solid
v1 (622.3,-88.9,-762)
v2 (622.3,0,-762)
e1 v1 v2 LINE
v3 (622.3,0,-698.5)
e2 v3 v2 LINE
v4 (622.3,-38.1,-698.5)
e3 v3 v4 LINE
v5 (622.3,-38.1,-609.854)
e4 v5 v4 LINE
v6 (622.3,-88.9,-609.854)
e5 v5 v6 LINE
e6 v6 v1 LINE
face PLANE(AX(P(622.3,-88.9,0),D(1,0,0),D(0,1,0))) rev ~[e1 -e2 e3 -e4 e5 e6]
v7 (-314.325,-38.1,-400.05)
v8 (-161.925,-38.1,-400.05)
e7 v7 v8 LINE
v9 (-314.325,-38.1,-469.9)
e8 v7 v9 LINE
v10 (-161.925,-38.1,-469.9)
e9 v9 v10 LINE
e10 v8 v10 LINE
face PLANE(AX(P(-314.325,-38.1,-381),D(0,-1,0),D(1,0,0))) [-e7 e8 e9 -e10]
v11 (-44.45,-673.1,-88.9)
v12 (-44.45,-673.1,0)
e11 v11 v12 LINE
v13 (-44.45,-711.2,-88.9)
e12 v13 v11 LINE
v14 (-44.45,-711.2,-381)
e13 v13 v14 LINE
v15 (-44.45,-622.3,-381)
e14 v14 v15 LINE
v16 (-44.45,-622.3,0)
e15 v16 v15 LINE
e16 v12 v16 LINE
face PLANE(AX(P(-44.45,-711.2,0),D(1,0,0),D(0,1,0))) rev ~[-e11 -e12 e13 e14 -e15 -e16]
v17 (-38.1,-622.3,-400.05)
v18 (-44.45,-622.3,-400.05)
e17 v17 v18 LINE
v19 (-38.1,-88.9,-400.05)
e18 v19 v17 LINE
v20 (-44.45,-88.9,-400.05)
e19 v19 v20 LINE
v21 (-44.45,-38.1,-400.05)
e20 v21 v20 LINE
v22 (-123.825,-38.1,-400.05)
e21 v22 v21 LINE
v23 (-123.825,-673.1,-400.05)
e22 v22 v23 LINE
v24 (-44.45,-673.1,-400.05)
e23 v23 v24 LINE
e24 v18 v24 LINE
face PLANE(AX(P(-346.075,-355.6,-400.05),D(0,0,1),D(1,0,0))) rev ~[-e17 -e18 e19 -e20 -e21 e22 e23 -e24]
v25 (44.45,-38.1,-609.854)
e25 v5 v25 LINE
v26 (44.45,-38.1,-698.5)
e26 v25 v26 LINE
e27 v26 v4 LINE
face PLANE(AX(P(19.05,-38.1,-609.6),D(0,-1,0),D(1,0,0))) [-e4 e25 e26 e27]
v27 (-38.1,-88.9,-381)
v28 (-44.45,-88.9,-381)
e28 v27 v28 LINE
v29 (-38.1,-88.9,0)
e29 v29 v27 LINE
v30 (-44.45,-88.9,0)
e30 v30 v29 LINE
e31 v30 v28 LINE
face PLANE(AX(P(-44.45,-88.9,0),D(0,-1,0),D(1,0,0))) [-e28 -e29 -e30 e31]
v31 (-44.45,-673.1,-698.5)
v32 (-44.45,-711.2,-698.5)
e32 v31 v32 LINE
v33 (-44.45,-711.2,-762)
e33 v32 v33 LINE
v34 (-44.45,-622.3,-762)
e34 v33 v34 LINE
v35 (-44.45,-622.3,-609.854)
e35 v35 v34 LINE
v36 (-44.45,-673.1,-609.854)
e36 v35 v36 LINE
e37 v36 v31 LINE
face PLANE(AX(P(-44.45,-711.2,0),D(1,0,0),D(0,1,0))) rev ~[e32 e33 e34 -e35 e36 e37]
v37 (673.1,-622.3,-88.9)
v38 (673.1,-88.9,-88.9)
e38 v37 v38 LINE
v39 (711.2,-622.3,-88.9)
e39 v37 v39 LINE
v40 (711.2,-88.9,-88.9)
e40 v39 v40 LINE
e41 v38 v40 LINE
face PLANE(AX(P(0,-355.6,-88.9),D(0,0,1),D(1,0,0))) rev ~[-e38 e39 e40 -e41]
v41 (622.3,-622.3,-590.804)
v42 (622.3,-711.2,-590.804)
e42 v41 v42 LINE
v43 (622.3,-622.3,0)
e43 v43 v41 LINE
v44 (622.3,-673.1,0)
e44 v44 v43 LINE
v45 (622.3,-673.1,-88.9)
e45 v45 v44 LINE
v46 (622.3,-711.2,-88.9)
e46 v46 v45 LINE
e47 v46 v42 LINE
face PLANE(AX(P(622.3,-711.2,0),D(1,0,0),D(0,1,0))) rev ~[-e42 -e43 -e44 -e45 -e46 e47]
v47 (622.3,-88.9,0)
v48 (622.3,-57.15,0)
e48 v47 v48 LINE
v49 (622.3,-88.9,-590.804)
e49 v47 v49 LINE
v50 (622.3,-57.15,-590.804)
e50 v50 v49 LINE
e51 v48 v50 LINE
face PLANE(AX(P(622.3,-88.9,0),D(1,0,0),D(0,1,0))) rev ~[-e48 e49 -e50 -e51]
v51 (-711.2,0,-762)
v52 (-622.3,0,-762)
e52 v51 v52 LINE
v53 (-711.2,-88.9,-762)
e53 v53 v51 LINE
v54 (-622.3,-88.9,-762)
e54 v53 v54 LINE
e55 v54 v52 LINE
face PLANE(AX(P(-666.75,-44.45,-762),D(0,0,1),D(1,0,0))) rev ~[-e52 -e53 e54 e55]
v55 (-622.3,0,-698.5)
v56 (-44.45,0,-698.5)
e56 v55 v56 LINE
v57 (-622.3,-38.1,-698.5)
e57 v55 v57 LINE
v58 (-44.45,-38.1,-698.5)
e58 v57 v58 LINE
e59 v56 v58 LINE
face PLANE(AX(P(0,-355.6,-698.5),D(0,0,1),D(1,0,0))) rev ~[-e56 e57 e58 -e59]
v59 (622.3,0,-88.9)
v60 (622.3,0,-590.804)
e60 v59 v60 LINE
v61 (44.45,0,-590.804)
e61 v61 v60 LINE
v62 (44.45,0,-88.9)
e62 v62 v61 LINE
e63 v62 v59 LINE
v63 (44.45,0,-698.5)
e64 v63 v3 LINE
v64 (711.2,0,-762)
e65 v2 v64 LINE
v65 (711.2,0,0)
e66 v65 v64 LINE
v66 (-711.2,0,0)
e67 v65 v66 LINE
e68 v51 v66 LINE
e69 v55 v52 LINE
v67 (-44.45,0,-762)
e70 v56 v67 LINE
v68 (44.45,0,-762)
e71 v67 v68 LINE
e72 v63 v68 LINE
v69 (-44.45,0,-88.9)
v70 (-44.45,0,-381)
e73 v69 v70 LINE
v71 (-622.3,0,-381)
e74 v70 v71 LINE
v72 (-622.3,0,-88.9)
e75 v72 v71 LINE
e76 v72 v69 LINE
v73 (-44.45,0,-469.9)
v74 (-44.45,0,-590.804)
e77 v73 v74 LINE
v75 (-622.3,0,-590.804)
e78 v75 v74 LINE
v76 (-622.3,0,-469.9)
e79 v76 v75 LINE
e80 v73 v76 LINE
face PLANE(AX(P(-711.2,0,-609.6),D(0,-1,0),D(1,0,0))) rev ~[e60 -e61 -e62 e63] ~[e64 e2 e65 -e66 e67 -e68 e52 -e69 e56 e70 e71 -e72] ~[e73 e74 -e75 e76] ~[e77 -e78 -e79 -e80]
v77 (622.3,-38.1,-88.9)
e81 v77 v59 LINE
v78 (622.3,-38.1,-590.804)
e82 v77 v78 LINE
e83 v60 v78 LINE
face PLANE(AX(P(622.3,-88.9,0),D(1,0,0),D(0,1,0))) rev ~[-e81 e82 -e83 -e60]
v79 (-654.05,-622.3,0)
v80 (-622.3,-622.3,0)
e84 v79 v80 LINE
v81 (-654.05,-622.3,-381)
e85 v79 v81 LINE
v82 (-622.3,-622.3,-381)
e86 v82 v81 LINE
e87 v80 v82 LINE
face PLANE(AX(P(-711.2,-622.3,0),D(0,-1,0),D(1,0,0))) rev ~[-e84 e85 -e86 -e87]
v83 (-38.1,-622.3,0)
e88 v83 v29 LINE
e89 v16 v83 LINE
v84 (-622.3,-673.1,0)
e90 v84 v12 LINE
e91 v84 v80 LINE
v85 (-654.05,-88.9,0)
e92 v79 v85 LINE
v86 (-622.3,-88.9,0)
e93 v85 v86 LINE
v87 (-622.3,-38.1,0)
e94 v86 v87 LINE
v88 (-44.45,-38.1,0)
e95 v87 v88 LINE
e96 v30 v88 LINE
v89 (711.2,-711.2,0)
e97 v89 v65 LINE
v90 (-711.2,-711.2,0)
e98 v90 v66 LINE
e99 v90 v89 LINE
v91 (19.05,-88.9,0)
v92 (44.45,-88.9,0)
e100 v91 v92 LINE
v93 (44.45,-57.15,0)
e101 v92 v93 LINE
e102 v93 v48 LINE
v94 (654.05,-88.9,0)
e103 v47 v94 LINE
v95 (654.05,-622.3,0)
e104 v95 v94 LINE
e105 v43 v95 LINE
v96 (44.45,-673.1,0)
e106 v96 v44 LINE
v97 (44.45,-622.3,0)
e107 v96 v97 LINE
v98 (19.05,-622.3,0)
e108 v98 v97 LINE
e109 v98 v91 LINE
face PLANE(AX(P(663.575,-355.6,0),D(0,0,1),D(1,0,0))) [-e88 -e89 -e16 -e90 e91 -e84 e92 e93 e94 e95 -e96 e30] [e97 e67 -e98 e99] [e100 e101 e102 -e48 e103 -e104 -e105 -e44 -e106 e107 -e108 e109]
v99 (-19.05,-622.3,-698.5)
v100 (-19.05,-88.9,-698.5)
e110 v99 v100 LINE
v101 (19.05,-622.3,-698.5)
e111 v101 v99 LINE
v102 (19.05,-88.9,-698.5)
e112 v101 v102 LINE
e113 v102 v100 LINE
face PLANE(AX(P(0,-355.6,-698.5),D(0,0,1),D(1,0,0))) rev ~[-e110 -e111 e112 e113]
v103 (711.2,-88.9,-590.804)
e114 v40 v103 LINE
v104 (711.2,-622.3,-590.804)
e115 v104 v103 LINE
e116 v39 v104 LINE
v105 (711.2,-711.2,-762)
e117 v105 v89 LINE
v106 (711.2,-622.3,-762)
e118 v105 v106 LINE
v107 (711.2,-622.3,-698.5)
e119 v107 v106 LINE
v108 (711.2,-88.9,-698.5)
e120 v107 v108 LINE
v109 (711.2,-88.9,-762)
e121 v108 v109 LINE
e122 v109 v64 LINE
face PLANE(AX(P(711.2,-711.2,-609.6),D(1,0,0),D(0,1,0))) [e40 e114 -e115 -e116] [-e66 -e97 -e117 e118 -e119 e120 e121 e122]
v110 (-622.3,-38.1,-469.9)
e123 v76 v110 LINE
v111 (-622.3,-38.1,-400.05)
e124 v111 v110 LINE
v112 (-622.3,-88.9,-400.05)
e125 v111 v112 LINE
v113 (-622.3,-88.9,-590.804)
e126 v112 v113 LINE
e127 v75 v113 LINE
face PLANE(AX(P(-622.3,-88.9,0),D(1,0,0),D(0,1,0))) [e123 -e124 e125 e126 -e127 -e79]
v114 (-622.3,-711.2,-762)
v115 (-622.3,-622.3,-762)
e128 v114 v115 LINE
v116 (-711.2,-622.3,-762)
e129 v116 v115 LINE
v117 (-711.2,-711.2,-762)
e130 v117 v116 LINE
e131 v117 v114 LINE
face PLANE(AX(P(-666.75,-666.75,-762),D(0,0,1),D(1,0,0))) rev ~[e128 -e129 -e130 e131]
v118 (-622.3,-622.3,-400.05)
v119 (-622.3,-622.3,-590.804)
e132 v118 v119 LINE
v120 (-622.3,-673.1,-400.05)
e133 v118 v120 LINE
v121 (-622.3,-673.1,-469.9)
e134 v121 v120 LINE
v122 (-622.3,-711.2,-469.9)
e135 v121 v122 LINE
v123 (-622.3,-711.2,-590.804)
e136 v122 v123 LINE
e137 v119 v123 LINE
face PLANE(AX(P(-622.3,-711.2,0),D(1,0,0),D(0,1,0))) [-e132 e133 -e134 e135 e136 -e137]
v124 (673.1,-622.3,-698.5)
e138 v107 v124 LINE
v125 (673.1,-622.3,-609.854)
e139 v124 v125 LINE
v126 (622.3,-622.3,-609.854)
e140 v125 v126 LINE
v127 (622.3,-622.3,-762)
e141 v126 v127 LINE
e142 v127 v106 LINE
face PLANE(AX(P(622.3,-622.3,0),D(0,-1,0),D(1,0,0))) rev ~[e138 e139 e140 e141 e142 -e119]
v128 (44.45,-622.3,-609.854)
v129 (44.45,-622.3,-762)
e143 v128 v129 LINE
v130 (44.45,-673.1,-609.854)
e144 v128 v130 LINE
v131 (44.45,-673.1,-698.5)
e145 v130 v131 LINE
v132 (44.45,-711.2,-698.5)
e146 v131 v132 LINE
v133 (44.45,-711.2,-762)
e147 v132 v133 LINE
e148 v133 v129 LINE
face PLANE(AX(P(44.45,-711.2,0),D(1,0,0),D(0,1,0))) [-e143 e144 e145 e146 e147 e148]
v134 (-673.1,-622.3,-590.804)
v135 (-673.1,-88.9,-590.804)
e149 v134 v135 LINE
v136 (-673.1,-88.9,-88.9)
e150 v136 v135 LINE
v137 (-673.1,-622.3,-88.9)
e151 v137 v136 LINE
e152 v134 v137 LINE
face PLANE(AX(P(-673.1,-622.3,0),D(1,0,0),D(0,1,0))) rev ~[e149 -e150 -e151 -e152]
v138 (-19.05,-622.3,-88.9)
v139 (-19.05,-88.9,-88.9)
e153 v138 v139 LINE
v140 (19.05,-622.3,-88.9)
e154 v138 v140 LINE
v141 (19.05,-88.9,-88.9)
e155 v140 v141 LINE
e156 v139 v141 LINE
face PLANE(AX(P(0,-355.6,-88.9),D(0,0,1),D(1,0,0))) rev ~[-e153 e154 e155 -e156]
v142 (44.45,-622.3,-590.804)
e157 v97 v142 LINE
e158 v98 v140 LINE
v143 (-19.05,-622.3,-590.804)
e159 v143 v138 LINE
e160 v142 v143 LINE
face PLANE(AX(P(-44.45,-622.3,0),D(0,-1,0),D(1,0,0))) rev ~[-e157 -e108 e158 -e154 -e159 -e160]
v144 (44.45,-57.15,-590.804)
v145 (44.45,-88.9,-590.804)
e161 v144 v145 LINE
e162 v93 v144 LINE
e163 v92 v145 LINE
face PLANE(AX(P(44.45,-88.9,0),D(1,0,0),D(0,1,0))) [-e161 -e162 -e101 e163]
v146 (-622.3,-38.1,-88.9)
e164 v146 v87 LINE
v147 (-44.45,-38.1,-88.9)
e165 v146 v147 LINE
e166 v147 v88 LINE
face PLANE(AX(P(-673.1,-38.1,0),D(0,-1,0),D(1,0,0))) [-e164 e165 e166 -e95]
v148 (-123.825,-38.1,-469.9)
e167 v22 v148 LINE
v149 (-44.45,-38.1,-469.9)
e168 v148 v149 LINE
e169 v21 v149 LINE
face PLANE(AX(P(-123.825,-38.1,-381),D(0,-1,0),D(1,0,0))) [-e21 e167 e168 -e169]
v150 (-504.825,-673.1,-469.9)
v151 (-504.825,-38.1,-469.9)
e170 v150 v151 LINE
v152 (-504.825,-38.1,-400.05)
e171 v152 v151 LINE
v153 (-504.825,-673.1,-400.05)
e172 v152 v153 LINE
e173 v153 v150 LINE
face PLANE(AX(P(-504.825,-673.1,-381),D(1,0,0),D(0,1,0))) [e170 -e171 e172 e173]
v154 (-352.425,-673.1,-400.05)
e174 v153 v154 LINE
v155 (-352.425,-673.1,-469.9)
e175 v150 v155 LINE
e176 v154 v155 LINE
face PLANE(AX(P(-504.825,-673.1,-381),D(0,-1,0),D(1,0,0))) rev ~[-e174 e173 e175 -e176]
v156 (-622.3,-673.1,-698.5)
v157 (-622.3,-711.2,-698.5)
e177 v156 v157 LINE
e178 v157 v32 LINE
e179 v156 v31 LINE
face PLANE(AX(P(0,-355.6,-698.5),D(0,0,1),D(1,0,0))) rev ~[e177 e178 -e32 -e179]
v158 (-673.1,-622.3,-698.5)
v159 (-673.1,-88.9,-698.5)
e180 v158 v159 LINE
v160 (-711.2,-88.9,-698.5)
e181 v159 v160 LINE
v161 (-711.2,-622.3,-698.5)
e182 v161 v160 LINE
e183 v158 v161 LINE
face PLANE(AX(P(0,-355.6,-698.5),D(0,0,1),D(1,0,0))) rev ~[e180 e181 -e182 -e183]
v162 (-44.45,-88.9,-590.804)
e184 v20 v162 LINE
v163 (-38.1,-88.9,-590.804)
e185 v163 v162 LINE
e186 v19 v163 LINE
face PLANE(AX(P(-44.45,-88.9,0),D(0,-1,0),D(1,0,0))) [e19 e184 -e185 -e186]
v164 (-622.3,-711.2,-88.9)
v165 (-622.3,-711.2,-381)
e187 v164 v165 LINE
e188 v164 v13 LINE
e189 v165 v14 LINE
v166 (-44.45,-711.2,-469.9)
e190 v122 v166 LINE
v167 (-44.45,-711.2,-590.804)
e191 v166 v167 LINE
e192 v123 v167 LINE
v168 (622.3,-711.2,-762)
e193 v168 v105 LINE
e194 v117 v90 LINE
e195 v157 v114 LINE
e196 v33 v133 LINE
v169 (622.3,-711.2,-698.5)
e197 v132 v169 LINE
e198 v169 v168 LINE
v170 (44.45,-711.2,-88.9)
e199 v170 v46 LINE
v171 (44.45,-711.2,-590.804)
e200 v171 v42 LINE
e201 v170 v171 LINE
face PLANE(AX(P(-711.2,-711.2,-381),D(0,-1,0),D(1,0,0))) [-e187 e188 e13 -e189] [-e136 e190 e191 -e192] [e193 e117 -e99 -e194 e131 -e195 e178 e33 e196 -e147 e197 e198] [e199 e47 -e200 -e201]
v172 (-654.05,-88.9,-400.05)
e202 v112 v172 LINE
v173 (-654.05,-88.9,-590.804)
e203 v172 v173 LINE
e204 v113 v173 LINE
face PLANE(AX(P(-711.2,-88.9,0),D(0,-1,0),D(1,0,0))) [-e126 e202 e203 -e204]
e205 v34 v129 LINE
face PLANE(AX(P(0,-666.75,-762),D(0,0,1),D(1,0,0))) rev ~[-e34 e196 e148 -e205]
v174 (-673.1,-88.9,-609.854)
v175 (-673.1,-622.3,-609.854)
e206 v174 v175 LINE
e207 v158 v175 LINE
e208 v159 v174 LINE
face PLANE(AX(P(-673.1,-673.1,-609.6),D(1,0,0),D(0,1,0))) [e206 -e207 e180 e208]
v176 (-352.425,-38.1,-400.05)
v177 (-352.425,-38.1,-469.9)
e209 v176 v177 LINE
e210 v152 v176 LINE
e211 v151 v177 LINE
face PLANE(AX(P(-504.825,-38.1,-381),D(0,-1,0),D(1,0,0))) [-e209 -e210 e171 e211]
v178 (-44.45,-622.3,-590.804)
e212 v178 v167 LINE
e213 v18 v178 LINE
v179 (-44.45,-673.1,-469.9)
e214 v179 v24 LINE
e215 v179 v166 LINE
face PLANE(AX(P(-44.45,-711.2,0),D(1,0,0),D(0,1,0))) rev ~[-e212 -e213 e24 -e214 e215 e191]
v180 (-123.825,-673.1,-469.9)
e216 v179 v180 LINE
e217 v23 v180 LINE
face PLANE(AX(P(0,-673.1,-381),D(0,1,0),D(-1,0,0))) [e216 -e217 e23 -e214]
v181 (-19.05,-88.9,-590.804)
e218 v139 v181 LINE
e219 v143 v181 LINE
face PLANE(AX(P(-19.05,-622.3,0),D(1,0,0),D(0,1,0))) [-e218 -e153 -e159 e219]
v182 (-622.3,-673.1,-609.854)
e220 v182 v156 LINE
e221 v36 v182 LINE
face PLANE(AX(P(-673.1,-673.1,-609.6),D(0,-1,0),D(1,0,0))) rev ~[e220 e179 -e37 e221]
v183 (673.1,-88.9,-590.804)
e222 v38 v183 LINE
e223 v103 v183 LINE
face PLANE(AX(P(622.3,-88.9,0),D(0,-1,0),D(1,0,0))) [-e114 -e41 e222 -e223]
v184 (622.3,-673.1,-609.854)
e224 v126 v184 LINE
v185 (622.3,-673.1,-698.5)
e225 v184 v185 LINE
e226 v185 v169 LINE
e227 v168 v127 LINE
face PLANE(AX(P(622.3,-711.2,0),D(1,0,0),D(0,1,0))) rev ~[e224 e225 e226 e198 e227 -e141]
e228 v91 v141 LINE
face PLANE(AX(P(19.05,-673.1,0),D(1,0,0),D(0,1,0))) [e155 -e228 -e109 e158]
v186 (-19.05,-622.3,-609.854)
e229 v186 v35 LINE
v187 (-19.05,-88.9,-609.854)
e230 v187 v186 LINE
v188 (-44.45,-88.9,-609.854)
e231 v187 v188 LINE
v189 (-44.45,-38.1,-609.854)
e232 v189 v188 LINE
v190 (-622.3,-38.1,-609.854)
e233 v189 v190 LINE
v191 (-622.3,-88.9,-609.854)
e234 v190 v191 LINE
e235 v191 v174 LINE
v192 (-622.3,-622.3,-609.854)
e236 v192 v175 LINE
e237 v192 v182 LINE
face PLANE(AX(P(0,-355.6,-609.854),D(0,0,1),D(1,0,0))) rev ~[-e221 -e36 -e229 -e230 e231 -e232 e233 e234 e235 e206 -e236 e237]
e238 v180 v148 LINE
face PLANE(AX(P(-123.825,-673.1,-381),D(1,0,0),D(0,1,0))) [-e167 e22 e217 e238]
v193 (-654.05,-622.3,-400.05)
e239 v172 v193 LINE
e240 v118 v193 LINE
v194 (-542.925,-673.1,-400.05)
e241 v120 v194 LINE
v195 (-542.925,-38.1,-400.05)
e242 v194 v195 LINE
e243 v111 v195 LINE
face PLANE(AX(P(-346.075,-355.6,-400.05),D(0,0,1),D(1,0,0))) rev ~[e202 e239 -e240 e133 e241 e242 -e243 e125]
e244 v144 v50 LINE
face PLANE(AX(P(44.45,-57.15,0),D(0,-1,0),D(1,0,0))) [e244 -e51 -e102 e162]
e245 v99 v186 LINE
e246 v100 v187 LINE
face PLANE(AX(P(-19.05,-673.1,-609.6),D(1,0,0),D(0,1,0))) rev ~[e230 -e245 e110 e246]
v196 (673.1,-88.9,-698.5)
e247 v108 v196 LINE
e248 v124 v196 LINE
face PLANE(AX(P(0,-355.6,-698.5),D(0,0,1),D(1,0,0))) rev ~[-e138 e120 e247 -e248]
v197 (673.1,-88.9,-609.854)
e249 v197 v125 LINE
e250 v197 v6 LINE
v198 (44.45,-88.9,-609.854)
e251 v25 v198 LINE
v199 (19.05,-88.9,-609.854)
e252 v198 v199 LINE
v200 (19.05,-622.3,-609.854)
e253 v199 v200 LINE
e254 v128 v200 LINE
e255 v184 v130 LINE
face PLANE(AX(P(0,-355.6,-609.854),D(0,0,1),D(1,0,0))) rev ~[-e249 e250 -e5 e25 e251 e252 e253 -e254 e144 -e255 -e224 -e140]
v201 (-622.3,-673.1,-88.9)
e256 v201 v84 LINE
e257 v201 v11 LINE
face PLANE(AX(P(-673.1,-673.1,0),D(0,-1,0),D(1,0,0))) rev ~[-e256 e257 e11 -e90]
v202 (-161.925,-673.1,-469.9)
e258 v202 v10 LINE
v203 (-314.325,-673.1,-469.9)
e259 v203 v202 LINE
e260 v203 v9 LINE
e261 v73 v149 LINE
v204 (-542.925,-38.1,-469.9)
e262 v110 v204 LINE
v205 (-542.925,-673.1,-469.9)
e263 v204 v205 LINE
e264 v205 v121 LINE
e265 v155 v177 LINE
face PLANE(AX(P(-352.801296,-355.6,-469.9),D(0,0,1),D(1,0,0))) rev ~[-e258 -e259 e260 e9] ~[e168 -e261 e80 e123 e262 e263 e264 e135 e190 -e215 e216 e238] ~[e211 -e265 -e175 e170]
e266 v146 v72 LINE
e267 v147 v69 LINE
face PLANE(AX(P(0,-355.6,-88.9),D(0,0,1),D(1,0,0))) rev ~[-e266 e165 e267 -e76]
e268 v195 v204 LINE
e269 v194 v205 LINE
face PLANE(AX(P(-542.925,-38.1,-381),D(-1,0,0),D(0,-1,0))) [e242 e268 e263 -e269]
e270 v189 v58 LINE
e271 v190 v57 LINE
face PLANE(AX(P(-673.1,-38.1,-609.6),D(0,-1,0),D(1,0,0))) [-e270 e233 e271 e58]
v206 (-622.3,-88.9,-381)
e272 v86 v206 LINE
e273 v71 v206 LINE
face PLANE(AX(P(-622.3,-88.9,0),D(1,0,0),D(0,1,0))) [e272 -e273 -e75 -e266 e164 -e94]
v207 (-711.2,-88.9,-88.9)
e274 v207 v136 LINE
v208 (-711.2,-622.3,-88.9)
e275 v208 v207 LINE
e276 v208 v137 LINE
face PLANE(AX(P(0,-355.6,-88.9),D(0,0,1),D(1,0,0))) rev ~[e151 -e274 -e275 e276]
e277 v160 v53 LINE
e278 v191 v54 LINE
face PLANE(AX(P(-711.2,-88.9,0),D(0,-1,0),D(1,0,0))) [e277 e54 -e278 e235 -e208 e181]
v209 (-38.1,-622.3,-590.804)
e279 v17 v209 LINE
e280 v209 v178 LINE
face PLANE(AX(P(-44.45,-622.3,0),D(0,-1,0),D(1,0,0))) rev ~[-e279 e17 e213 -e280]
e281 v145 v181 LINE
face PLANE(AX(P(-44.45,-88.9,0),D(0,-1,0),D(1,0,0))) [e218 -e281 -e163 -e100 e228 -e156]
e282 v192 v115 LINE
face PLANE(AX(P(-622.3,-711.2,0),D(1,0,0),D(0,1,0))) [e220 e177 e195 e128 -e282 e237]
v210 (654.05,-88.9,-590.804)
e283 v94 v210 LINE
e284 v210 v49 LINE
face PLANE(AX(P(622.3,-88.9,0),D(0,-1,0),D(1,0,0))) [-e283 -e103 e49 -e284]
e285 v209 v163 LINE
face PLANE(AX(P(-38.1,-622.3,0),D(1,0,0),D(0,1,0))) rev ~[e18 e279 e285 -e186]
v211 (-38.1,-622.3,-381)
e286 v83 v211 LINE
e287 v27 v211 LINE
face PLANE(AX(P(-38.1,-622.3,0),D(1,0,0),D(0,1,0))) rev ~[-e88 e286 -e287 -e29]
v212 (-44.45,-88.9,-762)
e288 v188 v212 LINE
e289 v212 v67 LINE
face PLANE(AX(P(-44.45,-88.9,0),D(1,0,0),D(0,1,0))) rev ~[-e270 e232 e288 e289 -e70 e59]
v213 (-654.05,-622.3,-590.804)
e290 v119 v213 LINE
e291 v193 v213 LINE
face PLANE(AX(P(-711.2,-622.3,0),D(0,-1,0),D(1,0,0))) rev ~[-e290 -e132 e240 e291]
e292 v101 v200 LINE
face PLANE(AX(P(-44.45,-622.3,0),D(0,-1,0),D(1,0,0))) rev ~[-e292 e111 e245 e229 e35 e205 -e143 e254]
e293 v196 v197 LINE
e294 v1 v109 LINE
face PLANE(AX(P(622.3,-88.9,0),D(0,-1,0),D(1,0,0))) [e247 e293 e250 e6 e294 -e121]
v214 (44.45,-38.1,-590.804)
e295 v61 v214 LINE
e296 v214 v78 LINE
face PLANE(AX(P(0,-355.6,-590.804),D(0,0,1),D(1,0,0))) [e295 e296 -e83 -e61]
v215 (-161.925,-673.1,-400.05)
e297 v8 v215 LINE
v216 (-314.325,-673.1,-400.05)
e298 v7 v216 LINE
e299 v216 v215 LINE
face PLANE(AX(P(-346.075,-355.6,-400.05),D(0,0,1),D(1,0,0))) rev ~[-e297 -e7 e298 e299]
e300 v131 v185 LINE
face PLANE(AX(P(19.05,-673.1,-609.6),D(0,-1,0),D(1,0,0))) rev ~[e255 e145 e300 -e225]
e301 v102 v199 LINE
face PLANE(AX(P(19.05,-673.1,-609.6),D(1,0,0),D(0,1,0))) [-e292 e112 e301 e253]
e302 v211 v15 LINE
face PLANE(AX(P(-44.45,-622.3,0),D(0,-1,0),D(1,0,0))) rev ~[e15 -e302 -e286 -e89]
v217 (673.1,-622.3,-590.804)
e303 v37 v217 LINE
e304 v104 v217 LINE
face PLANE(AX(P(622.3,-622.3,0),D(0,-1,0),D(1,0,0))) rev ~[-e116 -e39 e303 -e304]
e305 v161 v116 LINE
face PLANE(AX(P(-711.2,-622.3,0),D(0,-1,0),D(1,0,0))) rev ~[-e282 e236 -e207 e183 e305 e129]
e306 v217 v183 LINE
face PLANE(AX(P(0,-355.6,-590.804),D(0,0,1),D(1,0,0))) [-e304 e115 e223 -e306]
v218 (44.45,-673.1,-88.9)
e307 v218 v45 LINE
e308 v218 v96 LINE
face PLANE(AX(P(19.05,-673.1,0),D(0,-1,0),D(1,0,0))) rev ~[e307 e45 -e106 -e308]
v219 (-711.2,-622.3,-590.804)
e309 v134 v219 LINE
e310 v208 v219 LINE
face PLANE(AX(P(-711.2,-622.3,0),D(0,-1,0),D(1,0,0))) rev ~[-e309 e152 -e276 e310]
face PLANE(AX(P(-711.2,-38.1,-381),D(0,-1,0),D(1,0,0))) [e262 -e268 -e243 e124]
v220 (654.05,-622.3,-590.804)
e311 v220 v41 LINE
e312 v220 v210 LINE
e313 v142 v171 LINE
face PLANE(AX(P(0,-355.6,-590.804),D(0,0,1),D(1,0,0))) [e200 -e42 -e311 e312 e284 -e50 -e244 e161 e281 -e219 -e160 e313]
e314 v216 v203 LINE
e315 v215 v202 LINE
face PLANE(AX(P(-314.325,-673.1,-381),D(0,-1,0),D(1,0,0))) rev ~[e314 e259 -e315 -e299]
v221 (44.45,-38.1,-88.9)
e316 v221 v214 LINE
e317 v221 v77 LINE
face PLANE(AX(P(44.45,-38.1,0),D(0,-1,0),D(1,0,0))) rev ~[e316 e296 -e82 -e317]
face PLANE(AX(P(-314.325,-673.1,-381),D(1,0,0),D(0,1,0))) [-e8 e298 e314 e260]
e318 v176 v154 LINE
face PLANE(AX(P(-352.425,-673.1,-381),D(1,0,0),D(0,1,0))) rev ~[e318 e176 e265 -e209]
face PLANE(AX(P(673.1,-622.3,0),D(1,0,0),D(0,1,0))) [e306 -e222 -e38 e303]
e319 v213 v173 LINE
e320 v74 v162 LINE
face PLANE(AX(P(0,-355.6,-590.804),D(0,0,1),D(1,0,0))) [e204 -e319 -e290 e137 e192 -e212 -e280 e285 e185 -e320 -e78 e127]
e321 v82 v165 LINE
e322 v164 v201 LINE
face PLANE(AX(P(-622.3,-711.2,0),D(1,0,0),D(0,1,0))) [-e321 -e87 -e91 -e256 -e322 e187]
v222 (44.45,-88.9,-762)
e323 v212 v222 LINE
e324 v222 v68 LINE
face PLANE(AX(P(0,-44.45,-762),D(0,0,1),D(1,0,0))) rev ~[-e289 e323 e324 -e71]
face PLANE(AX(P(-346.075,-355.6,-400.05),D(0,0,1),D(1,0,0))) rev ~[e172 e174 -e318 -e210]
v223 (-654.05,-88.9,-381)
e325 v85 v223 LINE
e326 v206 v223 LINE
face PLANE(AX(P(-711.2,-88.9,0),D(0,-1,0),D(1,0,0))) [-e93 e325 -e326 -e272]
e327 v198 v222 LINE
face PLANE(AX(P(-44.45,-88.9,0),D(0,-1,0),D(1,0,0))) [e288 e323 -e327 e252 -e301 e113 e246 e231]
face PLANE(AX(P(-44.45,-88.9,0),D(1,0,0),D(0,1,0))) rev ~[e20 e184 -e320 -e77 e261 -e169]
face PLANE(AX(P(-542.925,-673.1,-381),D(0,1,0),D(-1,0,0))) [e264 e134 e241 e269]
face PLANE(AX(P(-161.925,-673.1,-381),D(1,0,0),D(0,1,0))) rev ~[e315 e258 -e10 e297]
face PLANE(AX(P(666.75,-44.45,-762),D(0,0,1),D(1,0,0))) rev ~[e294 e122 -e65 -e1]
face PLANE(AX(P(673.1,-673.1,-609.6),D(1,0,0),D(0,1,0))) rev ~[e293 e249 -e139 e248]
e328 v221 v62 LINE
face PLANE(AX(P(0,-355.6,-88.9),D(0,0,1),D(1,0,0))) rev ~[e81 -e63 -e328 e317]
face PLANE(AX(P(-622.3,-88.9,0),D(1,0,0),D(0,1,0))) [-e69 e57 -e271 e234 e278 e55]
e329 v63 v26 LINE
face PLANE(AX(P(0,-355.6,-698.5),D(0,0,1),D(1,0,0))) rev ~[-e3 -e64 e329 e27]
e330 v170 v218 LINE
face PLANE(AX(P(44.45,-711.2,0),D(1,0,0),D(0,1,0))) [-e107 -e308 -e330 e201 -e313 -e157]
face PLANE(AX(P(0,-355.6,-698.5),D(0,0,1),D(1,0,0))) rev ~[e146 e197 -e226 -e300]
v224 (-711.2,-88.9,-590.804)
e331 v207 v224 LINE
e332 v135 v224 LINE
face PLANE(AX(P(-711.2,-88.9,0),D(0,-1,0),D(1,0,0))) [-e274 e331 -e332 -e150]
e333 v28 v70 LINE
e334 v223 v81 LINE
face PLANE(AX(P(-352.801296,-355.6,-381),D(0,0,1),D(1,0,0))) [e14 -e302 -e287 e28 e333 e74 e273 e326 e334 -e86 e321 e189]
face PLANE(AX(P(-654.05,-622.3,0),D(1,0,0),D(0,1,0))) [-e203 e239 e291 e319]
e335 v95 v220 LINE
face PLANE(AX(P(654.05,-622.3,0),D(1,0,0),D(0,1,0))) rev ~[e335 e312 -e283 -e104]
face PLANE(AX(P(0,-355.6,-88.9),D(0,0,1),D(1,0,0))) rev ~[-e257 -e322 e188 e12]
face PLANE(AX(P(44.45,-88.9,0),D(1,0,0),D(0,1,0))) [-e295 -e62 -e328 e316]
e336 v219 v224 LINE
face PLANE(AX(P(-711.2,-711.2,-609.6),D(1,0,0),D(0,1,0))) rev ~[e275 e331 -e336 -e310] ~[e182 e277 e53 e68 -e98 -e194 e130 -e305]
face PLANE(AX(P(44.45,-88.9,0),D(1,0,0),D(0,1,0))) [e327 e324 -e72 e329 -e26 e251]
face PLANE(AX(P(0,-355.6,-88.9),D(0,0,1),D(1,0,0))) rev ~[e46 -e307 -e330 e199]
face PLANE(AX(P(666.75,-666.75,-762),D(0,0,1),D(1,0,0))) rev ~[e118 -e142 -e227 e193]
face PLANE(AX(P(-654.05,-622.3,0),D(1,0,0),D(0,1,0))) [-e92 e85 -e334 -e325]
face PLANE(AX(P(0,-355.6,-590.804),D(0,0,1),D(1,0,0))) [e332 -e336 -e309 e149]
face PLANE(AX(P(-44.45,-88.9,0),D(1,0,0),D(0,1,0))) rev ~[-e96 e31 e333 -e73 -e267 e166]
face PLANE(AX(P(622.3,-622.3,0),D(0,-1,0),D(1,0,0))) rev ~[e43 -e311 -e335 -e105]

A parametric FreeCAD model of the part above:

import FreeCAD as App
import Part
import Sketcher

V = App.Vector
Q = App.Units.Quantity

doc = App.newDocument("Part")
body = doc.addObject("PartDesign::Body", "Body")

# Sketch on XY plane
sketch1 = body.newObject("Sketcher::SketchObject", "Sketch")
sketch1.AttachmentSupport = (doc.getObject("XY_Plane"), [""])
sketch1.MapMode = "FlatFace"
sketch1.addGeometry(Part.LineSegment(V(-711, 0, 0), V(-711, -711, 0)), False)
sketch1.addGeometry(Part.LineSegment(V(-711, -711, 0), V(711, -711, 0)), False)
sketch1.addGeometry(Part.LineSegment(V(711, -711, 0), V(711, 0, 0)), False)
sketch1.addGeometry(Part.LineSegment(V(711, 0, 0), V(-711, 0, 0)), False)
sketch1.addGeometry(Part.LineSegment(V(-19, -673, 0), V(-673, -673, 0)), False)
sketch1.addGeometry(Part.LineSegment(V(-673, -673, 0), V(-673, -38, 0)), False)
sketch1.addGeometry(Part.LineSegment(V(-673, -38, 0), V(-19, -38, 0)), False)
sketch1.addGeometry(Part.LineSegment(V(-19, -38, 0), V(-19, -673, 0)), False)
sketch1.addGeometry(Part.LineSegment(V(673, -673, 0), V(19, -673, 0)), False)
sketch1.addGeometry(Part.LineSegment(V(19, -673, 0), V(19, -38, 0)), False)
sketch1.addGeometry(Part.LineSegment(V(19, -38, 0), V(673, -38, 0)), False)
sketch1.addGeometry(Part.LineSegment(V(673, -38, 0), V(673, -673, 0)), False)
sketch1.addConstraint(Sketcher.Constraint("Coincident", 0, 2, 1, 1))
sketch1.addConstraint(Sketcher.Constraint("Coincident", 1, 2, 2, 1))
sketch1.addConstraint(Sketcher.Constraint("Coincident", 2, 2, 3, 1))
sketch1.addConstraint(Sketcher.Constraint("Coincident", 3, 2, 0, 1))
sketch1.addConstraint(Sketcher.Constraint("Coincident", 4, 2, 5, 1))
sketch1.addConstraint(Sketcher.Constraint("Coincident", 5, 2, 6, 1))
sketch1.addConstraint(Sketcher.Constraint("Coincident", 6, 2, 7, 1))
sketch1.addConstraint(Sketcher.Constraint("Coincident", 7, 2, 4, 1))
sketch1.addConstraint(Sketcher.Constraint("Coincident", 8, 2, 9, 1))
sketch1.addConstraint(Sketcher.Constraint("Coincident", 9, 2, 10, 1))
sketch1.addConstraint(Sketcher.Constraint("Coincident", 10, 2, 11, 1))
sketch1.addConstraint(Sketcher.Constraint("Coincident", 11, 2, 8, 1))
sketch1.addConstraint(Sketcher.Constraint("Vertical", 0))
sketch1.addConstraint(Sketcher.Constraint("Horizontal", 1))
sketch1.addConstraint(Sketcher.Constraint("Vertical", 2))
sketch1.addConstraint(Sketcher.Constraint("Horizontal", 3))
sketch1.addConstraint(Sketcher.Constraint("Horizontal", 4))
sketch1.addConstraint(Sketcher.Constraint("Vertical", 5))
sketch1.addConstraint(Sketcher.Constraint("Horizontal", 6))
sketch1.addConstraint(Sketcher.Constraint("Vertical", 7))
sketch1.addConstraint(Sketcher.Constraint("Horizontal", 8))
sketch1.addConstraint(Sketcher.Constraint("Vertical", 9))
sketch1.addConstraint(Sketcher.Constraint("Horizontal", 10))
sketch1.addConstraint(Sketcher.Constraint("Vertical", 11))
sketch1.addConstraint(Sketcher.Constraint("Symmetric", 2, 2, 3, 2, -1, 1))
sketch1.addConstraint(Sketcher.Constraint("Symmetric", 7, 2, 8, 2, -2))
sketch1.addConstraint(Sketcher.Constraint("Symmetric", 5, 2, 10, 2, -2))
sketch1.addConstraint(Sketcher.Constraint("DistanceX", 1, 1, 1, 2, Q("56 in")))
sketch1.addConstraint(Sketcher.Constraint("DistanceY", 0, 2, 0, 1, Q("28 in")))
sketch1.addConstraint(Sketcher.Constraint("DistanceY", 5, 1, 5, 2, Q("25 in")))
sketch1.addConstraint(Sketcher.Constraint("DistanceX", 4, 2, 4, 1, Q("25.75 in")))
sketch1.addConstraint(Sketcher.Constraint("DistanceX", 4, 2, -1, 1, Q("26.5 in")))
sketch1.addConstraint(Sketcher.Constraint("DistanceY", 4, 2, -1, 1, Q("26.5 in")))
pad1 = body.newObject("PartDesign::Pad", "Pad")
pad1.Profile = sketch1
pad1.Length = Q("3.5 in")
pad1.Reversed = True

# Sketch on XY plane
sketch2 = body.newObject("Sketcher::SketchObject", "Sketch001")
sketch2.AttachmentSupport = (doc.getObject("XY_Plane"), [""])
sketch2.MapMode = "FlatFace"
sketch2.addGeometry(Part.LineSegment(V(-711, 0, 0), V(-711, -89, 0)), False)
sketch2.addGeometry(Part.LineSegment(V(-711, -89, 0), V(-622, -89, 0)), False)
sketch2.addGeometry(Part.LineSegment(V(-622, -89, 0), V(-622, 0, 0)), False)
sketch2.addGeometry(Part.LineSegment(V(-622, 0, 0), V(-711, 0, 0)), False)
sketch2.addGeometry(Part.LineSegment(V(-711, -622, 0), V(-711, -711, 0)), False)
sketch2.addGeometry(Part.LineSegment(V(-711, -711, 0), V(-622, -711, 0)), False)
sketch2.addGeometry(Part.LineSegment(V(-622, -711, 0), V(-622, -622, 0)), False)
sketch2.addGeometry(Part.LineSegment(V(-622, -622, 0), V(-711, -622, 0)), False)
sketch2.addGeometry(Part.LineSegment(V(-44, 0, 0), V(-44, -89, 0)), False)
sketch2.addGeometry(Part.LineSegment(V(-44, -89, 0), V(44, -89, 0)), False)
sketch2.addGeometry(Part.LineSegment(V(44, -89, 0), V(44, 0, 0)), False)
sketch2.addGeometry(Part.LineSegment(V(44, 0, 0), V(-44, 0, 0)), False)
sketch2.addGeometry(Part.LineSegment(V(-44, -622, 0), V(-44, -711, 0)), False)
sketch2.addGeometry(Part.LineSegment(V(-44, -711, 0), V(44, -711, 0)), False)
sketch2.addGeometry(Part.LineSegment(V(44, -711, 0), V(44, -622, 0)), False)
sketch2.addGeometry(Part.LineSegment(V(44, -622, 0), V(-44, -622, 0)), False)
sketch2.addGeometry(Part.LineSegment(V(622, 0, 0), V(622, -89, 0)), False)
sketch2.addGeometry(Part.LineSegment(V(622, -89, 0), V(711, -89, 0)), False)
sketch2.addGeometry(Part.LineSegment(V(711, -89, 0), V(711, 0, 0)), False)
sketch2.addGeometry(Part.LineSegment(V(711, 0, 0), V(622, 0, 0)), False)
sketch2.addGeometry(Part.LineSegment(V(622, -622, 0), V(622, -711, 0)), False)
sketch2.addGeometry(Part.LineSegment(V(622, -711, 0), V(711, -711, 0)), False)
sketch2.addGeometry(Part.LineSegment(V(711, -711, 0), V(711, -622, 0)), False)
sketch2.addGeometry(Part.LineSegment(V(711, -622, 0), V(622, -622, 0)), False)
sketch2.addConstraint(Sketcher.Constraint("Coincident", 0, 2, 1, 1))
sketch2.addConstraint(Sketcher.Constraint("Coincident", 1, 2, 2, 1))
sketch2.addConstraint(Sketcher.Constraint("Coincident", 2, 2, 3, 1))
sketch2.addConstraint(Sketcher.Constraint("Coincident", 3, 2, 0, 1))
sketch2.addConstraint(Sketcher.Constraint("Coincident", 4, 2, 5, 1))
sketch2.addConstraint(Sketcher.Constraint("Coincident", 5, 2, 6, 1))
sketch2.addConstraint(Sketcher.Constraint("Coincident", 6, 2, 7, 1))
sketch2.addConstraint(Sketcher.Constraint("Coincident", 7, 2, 4, 1))
sketch2.addConstraint(Sketcher.Constraint("Coincident", 8, 2, 9, 1))
sketch2.addConstraint(Sketcher.Constraint("Coincident", 9, 2, 10, 1))
sketch2.addConstraint(Sketcher.Constraint("Coincident", 10, 2, 11, 1))
sketch2.addConstraint(Sketcher.Constraint("Coincident", 11, 2, 8, 1))
sketch2.addConstraint(Sketcher.Constraint("Coincident", 12, 2, 13, 1))
sketch2.addConstraint(Sketcher.Constraint("Coincident", 13, 2, 14, 1))
sketch2.addConstraint(Sketcher.Constraint("Coincident", 14, 2, 15, 1))
sketch2.addConstraint(Sketcher.Constraint("Coincident", 15, 2, 12, 1))
sketch2.addConstraint(Sketcher.Constraint("Coincident", 16, 2, 17, 1))
sketch2.addConstraint(Sketcher.Constraint("Coincident", 17, 2, 18, 1))
sketch2.addConstraint(Sketcher.Constraint("Coincident", 18, 2, 19, 1))
sketch2.addConstraint(Sketcher.Constraint("Coincident", 19, 2, 16, 1))
sketch2.addConstraint(Sketcher.Constraint("Coincident", 20, 2, 21, 1))
sketch2.addConstraint(Sketcher.Constraint("Coincident", 21, 2, 22, 1))
sketch2.addConstraint(Sketcher.Constraint("Coincident", 22, 2, 23, 1))
sketch2.addConstraint(Sketcher.Constraint("Coincident", 23, 2, 20, 1))
sketch2.addConstraint(Sketcher.Constraint("Vertical", 0))
sketch2.addConstraint(Sketcher.Constraint("Horizontal", 1))
sketch2.addConstraint(Sketcher.Constraint("Vertical", 2))
sketch2.addConstraint(Sketcher.Constraint("Horizontal", 3))
sketch2.addConstraint(Sketcher.Constraint("Vertical", 4))
sketch2.addConstraint(Sketcher.Constraint("Horizontal", 5))
sketch2.addConstraint(Sketcher.Constraint("Vertical", 6))
sketch2.addConstraint(Sketcher.Constraint("Horizontal", 7))
sketch2.addConstraint(Sketcher.Constraint("Vertical", 8))
sketch2.addConstraint(Sketcher.Constraint("Horizontal", 9))
sketch2.addConstraint(Sketcher.Constraint("Vertical", 10))
sketch2.addConstraint(Sketcher.Constraint("Horizontal", 11))
sketch2.addConstraint(Sketcher.Constraint("Vertical", 12))
sketch2.addConstraint(Sketcher.Constraint("Horizontal", 13))
sketch2.addConstraint(Sketcher.Constraint("Vertical", 14))
sketch2.addConstraint(Sketcher.Constraint("Horizontal", 15))
sketch2.addConstraint(Sketcher.Constraint("Vertical", 16))
sketch2.addConstraint(Sketcher.Constraint("Horizontal", 17))
sketch2.addConstraint(Sketcher.Constraint("Vertical", 18))
sketch2.addConstraint(Sketcher.Constraint("Horizontal", 19))
sketch2.addConstraint(Sketcher.Constraint("Vertical", 20))
sketch2.addConstraint(Sketcher.Constraint("Horizontal", 21))
sketch2.addConstraint(Sketcher.Constraint("Vertical", 22))
sketch2.addConstraint(Sketcher.Constraint("Horizontal", 23))
sketch2.addConstraint(Sketcher.Constraint("Symmetric", 10, 2, 11, 2, -1, 1))
sketch2.addConstraint(Sketcher.Constraint("Symmetric", 3, 2, 18, 2, -1, 1))
sketch2.addConstraint(Sketcher.Constraint("Symmetric", 1, 2, 16, 2, -2))
sketch2.addConstraint(Sketcher.Constraint("Symmetric", 5, 2, 20, 2, -2))
sketch2.addConstraint(Sketcher.Constraint("Symmetric", 7, 2, 22, 2, -2))
sketch2.addConstraint(Sketcher.Constraint("PointOnObject", 2, 2, -1))
sketch2.addConstraint(Sketcher.Constraint("Horizontal", 1, 2, 8, 2))
sketch2.addConstraint(Sketcher.Constraint("Horizontal", 5, 2, 12, 2))
sketch2.addConstraint(Sketcher.Constraint("Horizontal", 7, 2, 14, 2))
sketch2.addConstraint(Sketcher.Constraint("Vertical", 3, 2, 4, 2))
sketch2.addConstraint(Sketcher.Constraint("Vertical", 2, 2, 5, 2))
sketch2.addConstraint(Sketcher.Constraint("Vertical", 11, 2, 12, 2))
sketch2.addConstraint(Sketcher.Constraint("Vertical", 10, 2, 13, 2))
sketch2.addConstraint(Sketcher.Constraint("Equal", 7, 9))
sketch2.addConstraint(Sketcher.Constraint("Equal", 23, 0))
sketch2.addConstraint(Sketcher.Constraint("Equal", 2, 4))
sketch2.addConstraint(Sketcher.Constraint("DistanceX", 1, 1, 1, 2, Q("3.5 in")))
sketch2.addConstraint(Sketcher.Constraint("DistanceX", 0, 2, -1, 1, Q("28 in")))
sketch2.addConstraint(Sketcher.Constraint("DistanceY", 4, 2, -1, 1, Q("28 in")))
pad2 = body.newObject("PartDesign::Pad", "Pad001")
pad2.Profile = sketch2
pad2.Length = Q("30 in")
pad2.Reversed = True

# Sketch on XY plane
sketch3 = body.newObject("Sketcher::SketchObject", "Sketch002")
sketch3.AttachmentSupport = (doc.getObject("XY_Plane"), [""])
sketch3.MapMode = "FlatFace"
sketch3.AttachmentOffset = App.Placement(V(0, 0, -24 * 25.4), App.Rotation())
sketch3.addGeometry(Part.LineSegment(V(-711, 0, 0), V(-711, -711, 0)), False)
sketch3.addGeometry(Part.LineSegment(V(-711, -711, 0), V(711, -711, 0)), False)
sketch3.addGeometry(Part.LineSegment(V(711, -711, 0), V(711, 0, 0)), False)
sketch3.addGeometry(Part.LineSegment(V(711, 0, 0), V(-711, 0, 0)), False)
sketch3.addGeometry(Part.LineSegment(V(-19, -673, 0), V(-673, -673, 0)), False)
sketch3.addGeometry(Part.LineSegment(V(-673, -673, 0), V(-673, -38, 0)), False)
sketch3.addGeometry(Part.LineSegment(V(-673, -38, 0), V(-19, -38, 0)), False)
sketch3.addGeometry(Part.LineSegment(V(-19, -38, 0), V(-19, -673, 0)), False)
sketch3.addGeometry(Part.LineSegment(V(673, -673, 0), V(19, -673, 0)), False)
sketch3.addGeometry(Part.LineSegment(V(19, -673, 0), V(19, -38, 0)), False)
sketch3.addGeometry(Part.LineSegment(V(19, -38, 0), V(673, -38, 0)), False)
sketch3.addGeometry(Part.LineSegment(V(673, -38, 0), V(673, -673, 0)), False)
sketch3.addConstraint(Sketcher.Constraint("Coincident", 0, 2, 1, 1))
sketch3.addConstraint(Sketcher.Constraint("Coincident", 1, 2, 2, 1))
sketch3.addConstraint(Sketcher.Constraint("Coincident", 2, 2, 3, 1))
sketch3.addConstraint(Sketcher.Constraint("Coincident", 3, 2, 0, 1))
sketch3.addConstraint(Sketcher.Constraint("Coincident", 4, 2, 5, 1))
sketch3.addConstraint(Sketcher.Constraint("Coincident", 5, 2, 6, 1))
sketch3.addConstraint(Sketcher.Constraint("Coincident", 6, 2, 7, 1))
sketch3.addConstraint(Sketcher.Constraint("Coincident", 7, 2, 4, 1))
sketch3.addConstraint(Sketcher.Constraint("Coincident", 8, 2, 9, 1))
sketch3.addConstraint(Sketcher.Constraint("Coincident", 9, 2, 10, 1))
sketch3.addConstraint(Sketcher.Constraint("Coincident", 10, 2, 11, 1))
sketch3.addConstraint(Sketcher.Constraint("Coincident", 11, 2, 8, 1))
sketch3.addConstraint(Sketcher.Constraint("Vertical", 0))
sketch3.addConstraint(Sketcher.Constraint("Horizontal", 1))
sketch3.addConstraint(Sketcher.Constraint("Vertical", 2))
sketch3.addConstraint(Sketcher.Constraint("Horizontal", 3))
sketch3.addConstraint(Sketcher.Constraint("Horizontal", 4))
sketch3.addConstraint(Sketcher.Constraint("Vertical", 5))
sketch3.addConstraint(Sketcher.Constraint("Horizontal", 6))
sketch3.addConstraint(Sketcher.Constraint("Vertical", 7))
sketch3.addConstraint(Sketcher.Constraint("Horizontal", 8))
sketch3.addConstraint(Sketcher.Constraint("Vertical", 9))
sketch3.addConstraint(Sketcher.Constraint("Horizontal", 10))
sketch3.addConstraint(Sketcher.Constraint("Vertical", 11))
sketch3.addConstraint(Sketcher.Constraint("Symmetric", 2, 2, 3, 2, -1, 1))
sketch3.addConstraint(Sketcher.Constraint("Symmetric", 7, 2, 8, 2, -2))
sketch3.addConstraint(Sketcher.Constraint("Symmetric", 5, 2, 10, 2, -2))
sketch3.addConstraint(Sketcher.Constraint("DistanceX", 1, 1, 1, 2, Q("56 in")))
sketch3.addConstraint(Sketcher.Constraint("DistanceY", 0, 2, 0, 1, Q("28 in")))
sketch3.addConstraint(Sketcher.Constraint("DistanceY", 5, 1, 5, 2, Q("25 in")))
sketch3.addConstraint(Sketcher.Constraint("DistanceX", 4, 2, 4, 1, Q("25.75 in")))
sketch3.addConstraint(Sketcher.Constraint("DistanceX", 4, 2, -1, 1, Q("26.5 in")))
sketch3.addConstraint(Sketcher.Constraint("DistanceY", 4, 2, -1, 1, Q("26.5 in")))
pad3 = body.newObject("PartDesign::Pad", "Pad002")
pad3.Profile = sketch3
pad3.Length = Q("3.5 in")
pad3.Reversed = True

# Sketch on XY plane
sketch4 = body.newObject("Sketcher::SketchObject", "Sketch003")
sketch4.AttachmentSupport = (doc.getObject("XY_Plane"), [""])
sketch4.MapMode = "FlatFace"
sketch4.AttachmentOffset = App.Placement(V(0, 0, -24 * 25.4), App.Rotation())
sketch4.addGeometry(Part.LineSegment(V(-711, 0, 0), V(-711, -711, 0)), False)
sketch4.addGeometry(Part.LineSegment(V(-711, -711, 0), V(711, -711, 0)), False)
sketch4.addGeometry(Part.LineSegment(V(711, -711, 0), V(711, 0, 0)), False)
sketch4.addGeometry(Part.LineSegment(V(711, 0, 0), V(-711, 0, 0)), False)
sketch4.addConstraint(Sketcher.Constraint("Coincident", 0, 2, 1, 1))
sketch4.addConstraint(Sketcher.Constraint("Coincident", 1, 2, 2, 1))
sketch4.addConstraint(Sketcher.Constraint("Coincident", 2, 2, 3, 1))
sketch4.addConstraint(Sketcher.Constraint("Coincident", 3, 2, 0, 1))
sketch4.addConstraint(Sketcher.Constraint("Vertical", 0))
sketch4.addConstraint(Sketcher.Constraint("Horizontal", 1))
sketch4.addConstraint(Sketcher.Constraint("Vertical", 2))
sketch4.addConstraint(Sketcher.Constraint("Horizontal", 3))
sketch4.addConstraint(Sketcher.Constraint("Symmetric", 2, 2, 3, 2, -1, 1))
sketch4.addConstraint(Sketcher.Constraint("DistanceX", 1, 1, 1, 2, Q("56 in")))
sketch4.addConstraint(Sketcher.Constraint("DistanceY", 0, 2, 0, 1, Q("28 in")))
pad4 = body.newObject("PartDesign::Pad", "Pad003")
pad4.Profile = sketch4
pad4.Type = "TwoLengths"
pad4.Length = Q("0.74 in")
pad4.Length2 = Q("0.01 in")

# Sketch on XY plane
sketch5 = body.newObject("Sketcher::SketchObject", "Sketch004")
sketch5.AttachmentSupport = (doc.getObject("XY_Plane"), [""])
sketch5.MapMode = "FlatFace"
sketch5.addGeometry(Part.LineSegment(V(654, -89, 0), V(654, -622, 0)), False)
sketch5.addGeometry(Part.LineSegment(V(654, -622, 0), V(673, -622, 0)), False)
sketch5.addGeometry(Part.LineSegment(V(673, -622, 0), V(673, -89, 0)), False)
sketch5.addGeometry(Part.LineSegment(V(673, -89, 0), V(654, -89, 0)), False)
sketch5.addGeometry(Part.LineSegment(V(44, -38, 0), V(44, -57, 0)), False)
sketch5.addGeometry(Part.LineSegment(V(44, -57, 0), V(622, -57, 0)), False)
sketch5.addGeometry(Part.LineSegment(V(622, -57, 0), V(622, -38, 0)), False)
sketch5.addGeometry(Part.LineSegment(V(622, -38, 0), V(44, -38, 0)), False)
sketch5.addGeometry(Part.LineSegment(V(-38, -89, 0), V(-38, -622, 0)), False)
sketch5.addGeometry(Part.LineSegment(V(-38, -622, 0), V(-19, -622, 0)), False)
sketch5.addGeometry(Part.LineSegment(V(-19, -622, 0), V(-19, -89, 0)), False)
sketch5.addGeometry(Part.LineSegment(V(-19, -89, 0), V(-38, -89, 0)), False)
sketch5.addGeometry(Part.LineSegment(V(-673, -89, 0), V(-673, -622, 0)), False)
sketch5.addGeometry(Part.LineSegment(V(-673, -622, 0), V(-654, -622, 0)), False)
sketch5.addGeometry(Part.LineSegment(V(-654, -622, 0), V(-654, -89, 0)), False)
sketch5.addGeometry(Part.LineSegment(V(-654, -89, 0), V(-673, -89, 0)), False)
sketch5.addConstraint(Sketcher.Constraint("Coincident", 0, 2, 1, 1))
sketch5.addConstraint(Sketcher.Constraint("Coincident", 1, 2, 2, 1))
sketch5.addConstraint(Sketcher.Constraint("Coincident", 2, 2, 3, 1))
sketch5.addConstraint(Sketcher.Constraint("Coincident", 3, 2, 0, 1))
sketch5.addConstraint(Sketcher.Constraint("Coincident", 4, 2, 5, 1))
sketch5.addConstraint(Sketcher.Constraint("Coincident", 5, 2, 6, 1))
sketch5.addConstraint(Sketcher.Constraint("Coincident", 6, 2, 7, 1))
sketch5.addConstraint(Sketcher.Constraint("Coincident", 7, 2, 4, 1))
sketch5.addConstraint(Sketcher.Constraint("Coincident", 8, 2, 9, 1))
sketch5.addConstraint(Sketcher.Constraint("Coincident", 9, 2, 10, 1))
sketch5.addConstraint(Sketcher.Constraint("Coincident", 10, 2, 11, 1))
sketch5.addConstraint(Sketcher.Constraint("Coincident", 11, 2, 8, 1))
sketch5.addConstraint(Sketcher.Constraint("Coincident", 12, 2, 13, 1))
sketch5.addConstraint(Sketcher.Constraint("Coincident", 13, 2, 14, 1))
sketch5.addConstraint(Sketcher.Constraint("Coincident", 14, 2, 15, 1))
sketch5.addConstraint(Sketcher.Constraint("Coincident", 15, 2, 12, 1))
sketch5.addConstraint(Sketcher.Constraint("Vertical", 0))
sketch5.addConstraint(Sketcher.Constraint("Horizontal", 1))
sketch5.addConstraint(Sketcher.Constraint("Vertical", 2))
sketch5.addConstraint(Sketcher.Constraint("Horizontal", 3))
sketch5.addConstraint(Sketcher.Constraint("Vertical", 4))
sketch5.addConstraint(Sketcher.Constraint("Horizontal", 5))
sketch5.addConstraint(Sketcher.Constraint("Vertical", 6))
sketch5.addConstraint(Sketcher.Constraint("Horizontal", 7))
sketch5.addConstraint(Sketcher.Constraint("Vertical", 8))
sketch5.addConstraint(Sketcher.Constraint("Horizontal", 9))
sketch5.addConstraint(Sketcher.Constraint("Vertical", 10))
sketch5.addConstraint(Sketcher.Constraint("Horizontal", 11))
sketch5.addConstraint(Sketcher.Constraint("Vertical", 12))
sketch5.addConstraint(Sketcher.Constraint("Horizontal", 13))
sketch5.addConstraint(Sketcher.Constraint("Vertical", 14))
sketch5.addConstraint(Sketcher.Constraint("Horizontal", 15))
sketch5.addConstraint(Sketcher.Constraint("Symmetric", 1, 2, 12, 2, -2))
sketch5.addConstraint(Sketcher.Constraint("Symmetric", 3, 2, 14, 2, -2))
sketch5.addConstraint(Sketcher.Constraint("Horizontal", 1, 2, 8, 2))
sketch5.addConstraint(Sketcher.Constraint("Horizontal", 3, 2, 10, 2))
sketch5.addConstraint(Sketcher.Constraint("Equal", 3, 9))
sketch5.addConstraint(Sketcher.Constraint("Equal", 15, 4))
sketch5.addConstraint(Sketcher.Constraint("DistanceY", 0, 2, 0, 1, Q("21 in")))
sketch5.addConstraint(Sketcher.Constraint("DistanceX", 4, 2, 3, 2, Q("24 in")))
sketch5.addConstraint(Sketcher.Constraint("DistanceX", 5, 2, 2, 2, Q("2 in")))
sketch5.addConstraint(Sketcher.Constraint("DistanceY", 3, 2, 6, 2, Q("2 in")))
sketch5.addConstraint(Sketcher.Constraint("DistanceX", 8, 2, 1, 2, Q("28 in")))
sketch5.addConstraint(Sketcher.Constraint("DistanceX", 12, 2, 8, 2, Q("25 in")))
sketch5.addConstraint(Sketcher.Constraint("DistanceX", 1, 1, 1, 2, Q("0.75 in")))
sketch5.addConstraint(Sketcher.Constraint("DistanceY", 0, 2, -1, 1, Q("24.5 in")))
pad5 = body.newObject("PartDesign::Pad", "Pad004")
pad5.Profile = sketch5
pad5.Type = "UpToLast"
pad5.Reversed = True

# Sketch on XY plane
sketch6 = body.newObject("Sketcher::SketchObject", "Sketch005")
sketch6.AttachmentSupport = (doc.getObject("XY_Plane"), [""])
sketch6.MapMode = "FlatFace"
sketch6.AttachmentOffset = App.Placement(V(0, 0, -15 * 25.4), App.Rotation())
sketch6.addGeometry(Part.LineSegment(V(0, 0, 0), V(-711, 0, 0)), False)
sketch6.addGeometry(Part.LineSegment(V(-711, 0, 0), V(-711, -38, 0)), False)
sketch6.addGeometry(Part.LineSegment(V(-711, -38, 0), V(-543, -38, 0)), False)
sketch6.addGeometry(Part.LineSegment(V(-543, -38, 0), V(-543, -673, 0)), False)
sketch6.addGeometry(Part.LineSegment(V(-543, -673, 0), V(-711, -673, 0)), False)
sketch6.addGeometry(Part.LineSegment(V(-711, -673, 0), V(-711, -711, 0)), False)
sketch6.addGeometry(Part.LineSegment(V(-711, -711, 0), V(0, -711, 0)), False)
sketch6.addGeometry(Part.LineSegment(V(0, -711, 0), V(0, -673, 0)), False)
sketch6.addGeometry(Part.LineSegment(V(0, -673, 0), V(-124, -673, 0)), False)
sketch6.addGeometry(Part.LineSegment(V(-124, -673, 0), V(-124, -38, 0)), False)
sketch6.addGeometry(Part.LineSegment(V(-124, -38, 0), V(0, -38, 0)), False)
sketch6.addGeometry(Part.LineSegment(V(0, -38, 0), V(0, 0, 0)), False)
sketch6.addGeometry(Part.LineSegment(V(-352, -673, 0), V(-505, -673, 0)), False)
sketch6.addGeometry(Part.LineSegment(V(-505, -673, 0), V(-505, -38, 0)), False)
sketch6.addGeometry(Part.LineSegment(V(-505, -38, 0), V(-352, -38, 0)), False)
sketch6.addGeometry(Part.LineSegment(V(-352, -38, 0), V(-352, -673, 0)), False)
sketch6.addGeometry(Part.LineSegment(V(-162, -673, 0), V(-314, -673, 0)), False)
sketch6.addGeometry(Part.LineSegment(V(-314, -673, 0), V(-314, -38, 0)), False)
sketch6.addGeometry(Part.LineSegment(V(-314, -38, 0), V(-162, -38, 0)), False)
sketch6.addGeometry(Part.LineSegment(V(-162, -38, 0), V(-162, -673, 0)), False)
sketch6.addConstraint(Sketcher.Constraint("Coincident", 0, 2, 1, 1))
sketch6.addConstraint(Sketcher.Constraint("Coincident", 1, 2, 2, 1))
sketch6.addConstraint(Sketcher.Constraint("Coincident", 2, 2, 3, 1))
sketch6.addConstraint(Sketcher.Constraint("Coincident", 3, 2, 4, 1))
sketch6.addConstraint(Sketcher.Constraint("Coincident", 4, 2, 5, 1))
sketch6.addConstraint(Sketcher.Constraint("Coincident", 5, 2, 6, 1))
sketch6.addConstraint(Sketcher.Constraint("Coincident", 6, 2, 7, 1))
sketch6.addConstraint(Sketcher.Constraint("Coincident", 7, 2, 8, 1))
sketch6.addConstraint(Sketcher.Constraint("Coincident", 8, 2, 9, 1))
sketch6.addConstraint(Sketcher.Constraint("Coincident", 9, 2, 10, 1))
sketch6.addConstraint(Sketcher.Constraint("Coincident", 10, 2, 11, 1))
sketch6.addConstraint(Sketcher.Constraint("Coincident", 11, 2, 0, 1))
sketch6.addConstraint(Sketcher.Constraint("Coincident", 12, 2, 13, 1))
sketch6.addConstraint(Sketcher.Constraint("Coincident", 13, 2, 14, 1))
sketch6.addConstraint(Sketcher.Constraint("Coincident", 14, 2, 15, 1))
sketch6.addConstraint(Sketcher.Constraint("Coincident", 15, 2, 12, 1))
sketch6.addConstraint(Sketcher.Constraint("Coincident", 16, 2, 17, 1))
sketch6.addConstraint(Sketcher.Constraint("Coincident", 17, 2, 18, 1))
sketch6.addConstraint(Sketcher.Constraint("Coincident", 18, 2, 19, 1))
sketch6.addConstraint(Sketcher.Constraint("Coincident", 19, 2, 16, 1))
sketch6.addConstraint(Sketcher.Constraint("Horizontal", 0))
sketch6.addConstraint(Sketcher.Constraint("Vertical", 1))
sketch6.addConstraint(Sketcher.Constraint("Horizontal", 2))
sketch6.addConstraint(Sketcher.Constraint("Vertical", 3))
sketch6.addConstraint(Sketcher.Constraint("Horizontal", 4))
sketch6.addConstraint(Sketcher.Constraint("Vertical", 5))
sketch6.addConstraint(Sketcher.Constraint("Horizontal", 6))
sketch6.addConstraint(Sketcher.Constraint("Vertical", 7))
sketch6.addConstraint(Sketcher.Constraint("Horizontal", 8))
sketch6.addConstraint(Sketcher.Constraint("Vertical", 9))
sketch6.addConstraint(Sketcher.Constraint("Horizontal", 10))
sketch6.addConstraint(Sketcher.Constraint("Vertical", 11))
sketch6.addConstraint(Sketcher.Constraint("Horizontal", 12))
sketch6.addConstraint(Sketcher.Constraint("Vertical", 13))
sketch6.addConstraint(Sketcher.Constraint("Horizontal", 14))
sketch6.addConstraint(Sketcher.Constraint("Vertical", 15))
sketch6.addConstraint(Sketcher.Constraint("Horizontal", 16))
sketch6.addConstraint(Sketcher.Constraint("Vertical", 17))
sketch6.addConstraint(Sketcher.Constraint("Horizontal", 18))
sketch6.addConstraint(Sketcher.Constraint("Vertical", 19))
sketch6.addConstraint(Sketcher.Constraint("Coincident", 11, 2, -1, 1))
sketch6.addConstraint(Sketcher.Constraint("PointOnObject", 6, 2, -2))
sketch6.addConstraint(Sketcher.Constraint("Horizontal", 4, 2, 7, 2))
sketch6.addConstraint(Sketcher.Constraint("Horizontal", 2, 2, 9, 2))
sketch6.addConstraint(Sketcher.Constraint("Horizontal", 8, 2, 12, 2))
sketch6.addConstraint(Sketcher.Constraint("Horizontal", 10, 2, 13, 2))
sketch6.addConstraint(Sketcher.Constraint("Horizontal", 15, 2, 16, 2))
sketch6.addConstraint(Sketcher.Constraint("Horizontal", 14, 2, 17, 2))
sketch6.addConstraint(Sketcher.Constraint("Vertical", 1, 2, 4, 2))
sketch6.addConstraint(Sketcher.Constraint("Equal", 14, 16))
sketch6.addConstraint(Sketcher.Constraint("Equal", 1, 5))
sketch6.addConstraint(Sketcher.Constraint("DistanceX", 0, 2, 0, 1, Q("28 in")))
sketch6.addConstraint(Sketcher.Constraint("DistanceX", 12, 2, 12, 1, Q("6 in")))
sketch6.addConstraint(Sketcher.Constraint("DistanceY", 3, 2, 3, 1, Q("25 in")))
sketch6.addConstraint(Sketcher.Constraint("DistanceY", 1, 2, 1, 1, Q("1.5 in")))
sketch6.addConstraint(Sketcher.Constraint("DistanceX", 12, 2, 8, 2, Q("15 in")))
sketch6.addConstraint(Sketcher.Constraint("DistanceX", 3, 2, 16, 2, Q("9 in")))
sketch6.addConstraint(Sketcher.Constraint("DistanceX", 3, 2, 8, 2, Q("16.5 in")))
sketch6.addConstraint(Sketcher.Constraint("DistanceX", 2, 1, 2, 2, Q("6.625 in")))
pad6 = body.newObject("PartDesign::Pad", "Pad005")
pad6.Profile = sketch6
pad6.Length = Q("3.5 in")
pad6.Reversed = True

# Sketch on XY plane
sketch7 = body.newObject("Sketcher::SketchObject", "Sketch006")
sketch7.AttachmentSupport = (doc.getObject("XY_Plane"), [""])
sketch7.MapMode = "FlatFace"
sketch7.AttachmentOffset = App.Placement(V(0, 0, -15 * 25.4), App.Rotation())
sketch7.addGeometry(Part.LineSegment(V(-673, -38, 0), V(-673, -673, 0)), False)
sketch7.addGeometry(Part.LineSegment(V(-673, -673, 0), V(-19, -673, 0)), False)
sketch7.addGeometry(Part.LineSegment(V(-19, -673, 0), V(-19, -38, 0)), False)
sketch7.addGeometry(Part.LineSegment(V(-19, -38, 0), V(-673, -38, 0)), False)
sketch7.addConstraint(Sketcher.Constraint("Coincident", 0, 2, 1, 1))
sketch7.addConstraint(Sketcher.Constraint("Coincident", 1, 2, 2, 1))
sketch7.addConstraint(Sketcher.Constraint("Coincident", 2, 2, 3, 1))
sketch7.addConstraint(Sketcher.Constraint("Coincident", 3, 2, 0, 1))
sketch7.addConstraint(Sketcher.Constraint("Vertical", 0))
sketch7.addConstraint(Sketcher.Constraint("Horizontal", 1))
sketch7.addConstraint(Sketcher.Constraint("Vertical", 2))
sketch7.addConstraint(Sketcher.Constraint("Horizontal", 3))
sketch7.addConstraint(Sketcher.Constraint("DistanceY", 0, 2, 0, 1, Q("25 in")))
sketch7.addConstraint(Sketcher.Constraint("DistanceX", 1, 1, 1, 2, Q("25.75 in")))
sketch7.addConstraint(Sketcher.Constraint("DistanceX", 0, 2, -1, 1, Q("26.5 in")))
sketch7.addConstraint(Sketcher.Constraint("DistanceY", 0, 2, -1, 1, Q("26.5 in")))
pad7 = body.newObject("PartDesign::Pad", "Pad006")
pad7.Profile = sketch7
pad7.Length = Q("0.75 in")
pad7.Reversed = True

doc.recompute()
